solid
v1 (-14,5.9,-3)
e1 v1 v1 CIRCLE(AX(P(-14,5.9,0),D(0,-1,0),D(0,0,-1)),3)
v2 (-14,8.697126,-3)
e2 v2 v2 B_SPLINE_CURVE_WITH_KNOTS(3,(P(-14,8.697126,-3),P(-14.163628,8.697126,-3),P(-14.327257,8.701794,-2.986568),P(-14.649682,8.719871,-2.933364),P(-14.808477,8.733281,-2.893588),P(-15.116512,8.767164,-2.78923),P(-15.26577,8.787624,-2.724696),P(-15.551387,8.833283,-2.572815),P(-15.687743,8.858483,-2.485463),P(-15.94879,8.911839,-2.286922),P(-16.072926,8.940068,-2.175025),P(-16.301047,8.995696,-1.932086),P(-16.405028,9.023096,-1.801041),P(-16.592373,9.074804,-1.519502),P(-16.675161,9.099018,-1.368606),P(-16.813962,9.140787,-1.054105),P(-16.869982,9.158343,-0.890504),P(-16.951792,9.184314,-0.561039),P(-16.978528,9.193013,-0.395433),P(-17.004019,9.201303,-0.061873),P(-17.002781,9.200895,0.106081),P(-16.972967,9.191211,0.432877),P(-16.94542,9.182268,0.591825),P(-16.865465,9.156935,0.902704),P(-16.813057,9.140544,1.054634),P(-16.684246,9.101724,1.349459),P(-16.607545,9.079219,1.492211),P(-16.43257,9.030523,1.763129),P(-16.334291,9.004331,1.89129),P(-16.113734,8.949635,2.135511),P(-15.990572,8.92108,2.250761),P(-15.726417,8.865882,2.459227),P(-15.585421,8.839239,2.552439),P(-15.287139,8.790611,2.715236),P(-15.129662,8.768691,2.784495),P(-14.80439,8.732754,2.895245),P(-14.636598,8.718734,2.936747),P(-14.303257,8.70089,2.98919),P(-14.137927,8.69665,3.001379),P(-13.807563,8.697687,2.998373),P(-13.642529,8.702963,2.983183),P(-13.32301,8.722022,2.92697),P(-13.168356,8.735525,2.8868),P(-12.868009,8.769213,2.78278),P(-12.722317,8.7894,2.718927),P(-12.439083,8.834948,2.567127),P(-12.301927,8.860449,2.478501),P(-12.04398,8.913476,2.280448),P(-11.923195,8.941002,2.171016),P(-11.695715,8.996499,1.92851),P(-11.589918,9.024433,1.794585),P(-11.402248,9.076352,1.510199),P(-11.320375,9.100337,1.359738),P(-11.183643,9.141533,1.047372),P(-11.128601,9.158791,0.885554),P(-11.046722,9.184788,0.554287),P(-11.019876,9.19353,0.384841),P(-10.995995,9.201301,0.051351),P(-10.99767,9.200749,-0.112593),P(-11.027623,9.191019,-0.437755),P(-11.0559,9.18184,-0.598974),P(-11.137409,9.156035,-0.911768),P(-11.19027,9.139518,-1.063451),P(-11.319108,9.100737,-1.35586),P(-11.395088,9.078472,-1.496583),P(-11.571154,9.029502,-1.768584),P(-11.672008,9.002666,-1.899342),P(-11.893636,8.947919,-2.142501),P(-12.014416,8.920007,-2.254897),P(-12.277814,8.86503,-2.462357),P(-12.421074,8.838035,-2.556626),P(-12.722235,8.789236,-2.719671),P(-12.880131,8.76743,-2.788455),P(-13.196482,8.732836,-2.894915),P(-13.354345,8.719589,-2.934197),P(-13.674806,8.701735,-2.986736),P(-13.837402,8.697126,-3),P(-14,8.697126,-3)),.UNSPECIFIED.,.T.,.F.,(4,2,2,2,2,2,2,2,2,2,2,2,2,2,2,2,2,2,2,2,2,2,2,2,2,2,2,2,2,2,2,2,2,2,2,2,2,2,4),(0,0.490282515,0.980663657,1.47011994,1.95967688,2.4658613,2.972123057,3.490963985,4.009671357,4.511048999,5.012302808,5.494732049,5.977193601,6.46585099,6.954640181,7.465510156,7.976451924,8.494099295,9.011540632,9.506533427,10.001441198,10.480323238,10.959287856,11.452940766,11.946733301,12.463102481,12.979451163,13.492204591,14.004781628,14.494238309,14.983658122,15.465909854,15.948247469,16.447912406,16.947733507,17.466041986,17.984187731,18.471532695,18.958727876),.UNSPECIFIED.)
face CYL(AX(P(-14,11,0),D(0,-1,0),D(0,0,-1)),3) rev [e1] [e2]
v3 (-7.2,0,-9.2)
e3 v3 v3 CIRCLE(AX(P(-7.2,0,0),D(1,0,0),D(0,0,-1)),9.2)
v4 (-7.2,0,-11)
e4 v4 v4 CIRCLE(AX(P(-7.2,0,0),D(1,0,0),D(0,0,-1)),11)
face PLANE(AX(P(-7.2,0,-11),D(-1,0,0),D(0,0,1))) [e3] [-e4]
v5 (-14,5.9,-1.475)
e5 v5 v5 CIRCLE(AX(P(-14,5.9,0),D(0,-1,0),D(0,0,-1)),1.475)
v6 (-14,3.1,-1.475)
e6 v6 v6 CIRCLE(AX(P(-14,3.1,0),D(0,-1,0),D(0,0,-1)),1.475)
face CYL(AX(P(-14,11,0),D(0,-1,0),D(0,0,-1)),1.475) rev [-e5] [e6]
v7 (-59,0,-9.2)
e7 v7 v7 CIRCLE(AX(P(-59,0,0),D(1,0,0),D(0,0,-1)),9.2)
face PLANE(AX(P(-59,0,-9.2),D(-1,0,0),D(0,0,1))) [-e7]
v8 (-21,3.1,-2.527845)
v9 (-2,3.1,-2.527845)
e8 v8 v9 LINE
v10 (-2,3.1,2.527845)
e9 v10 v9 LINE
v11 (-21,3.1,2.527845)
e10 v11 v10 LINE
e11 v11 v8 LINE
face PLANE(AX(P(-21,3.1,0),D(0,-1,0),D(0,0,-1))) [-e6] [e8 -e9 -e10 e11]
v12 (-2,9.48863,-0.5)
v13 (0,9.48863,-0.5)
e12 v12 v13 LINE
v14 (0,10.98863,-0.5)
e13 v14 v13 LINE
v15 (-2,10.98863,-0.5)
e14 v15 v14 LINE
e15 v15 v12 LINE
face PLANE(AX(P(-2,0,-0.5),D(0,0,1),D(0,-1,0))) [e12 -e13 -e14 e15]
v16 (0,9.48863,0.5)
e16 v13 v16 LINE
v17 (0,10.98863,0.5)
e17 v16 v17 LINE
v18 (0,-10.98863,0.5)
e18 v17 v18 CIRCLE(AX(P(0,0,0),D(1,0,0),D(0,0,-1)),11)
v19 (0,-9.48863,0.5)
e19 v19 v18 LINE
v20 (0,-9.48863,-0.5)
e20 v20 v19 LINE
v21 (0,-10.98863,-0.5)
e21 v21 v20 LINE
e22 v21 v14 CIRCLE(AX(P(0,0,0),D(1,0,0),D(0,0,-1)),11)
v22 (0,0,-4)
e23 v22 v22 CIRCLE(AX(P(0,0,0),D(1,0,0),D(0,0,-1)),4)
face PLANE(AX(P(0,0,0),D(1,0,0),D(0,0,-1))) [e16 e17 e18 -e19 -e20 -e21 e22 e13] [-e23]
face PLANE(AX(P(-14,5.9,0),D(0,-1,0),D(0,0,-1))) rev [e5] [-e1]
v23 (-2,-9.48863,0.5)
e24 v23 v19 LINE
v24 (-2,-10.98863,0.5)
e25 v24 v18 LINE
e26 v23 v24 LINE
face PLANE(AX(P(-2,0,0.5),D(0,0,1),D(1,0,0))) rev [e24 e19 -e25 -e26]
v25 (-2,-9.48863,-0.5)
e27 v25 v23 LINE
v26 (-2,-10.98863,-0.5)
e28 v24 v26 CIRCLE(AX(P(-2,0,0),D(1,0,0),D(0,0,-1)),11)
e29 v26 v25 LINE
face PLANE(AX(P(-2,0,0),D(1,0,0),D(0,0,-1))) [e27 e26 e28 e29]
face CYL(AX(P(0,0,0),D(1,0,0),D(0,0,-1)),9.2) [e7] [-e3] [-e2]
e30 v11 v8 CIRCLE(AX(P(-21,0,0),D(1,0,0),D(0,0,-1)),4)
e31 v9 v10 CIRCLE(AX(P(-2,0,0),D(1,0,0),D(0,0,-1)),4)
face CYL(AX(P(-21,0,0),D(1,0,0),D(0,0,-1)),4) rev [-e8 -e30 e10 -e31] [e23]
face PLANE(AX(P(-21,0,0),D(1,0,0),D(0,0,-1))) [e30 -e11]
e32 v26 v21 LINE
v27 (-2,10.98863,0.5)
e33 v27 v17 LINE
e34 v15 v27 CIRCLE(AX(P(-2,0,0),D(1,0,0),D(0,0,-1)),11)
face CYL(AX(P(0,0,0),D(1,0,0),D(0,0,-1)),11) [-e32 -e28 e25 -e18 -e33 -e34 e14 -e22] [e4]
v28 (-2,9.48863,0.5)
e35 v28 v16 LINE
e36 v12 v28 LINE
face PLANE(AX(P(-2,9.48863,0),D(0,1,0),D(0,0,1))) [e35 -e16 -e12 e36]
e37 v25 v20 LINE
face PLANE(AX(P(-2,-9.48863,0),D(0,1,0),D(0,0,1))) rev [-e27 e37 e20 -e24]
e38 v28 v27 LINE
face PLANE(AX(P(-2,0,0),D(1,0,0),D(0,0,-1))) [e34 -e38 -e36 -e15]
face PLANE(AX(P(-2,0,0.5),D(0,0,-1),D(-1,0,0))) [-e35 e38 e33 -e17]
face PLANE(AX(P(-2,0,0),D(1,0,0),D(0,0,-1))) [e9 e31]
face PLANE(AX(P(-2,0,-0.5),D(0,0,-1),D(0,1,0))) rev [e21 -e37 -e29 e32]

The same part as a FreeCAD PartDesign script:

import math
import FreeCAD as App
import Part
import Sketcher


def add_polygon(sketch, points):
    """Adds a closed chain of lines whose ends are joined by coincident constraints."""
    first, n = sketch.GeometryCount, len(points)
    for a, b in zip(points, points[1:] + points[:1]):
        sketch.addGeometry(Part.LineSegment(App.Vector(*a, 0), App.Vector(*b, 0)), False)
    for i in range(n):
        sketch.addConstraint(Sketcher.Constraint("Coincident", first + i, 2, first + (i + 1) % n, 1))

doc = App.newDocument("Part")
body = doc.addObject("PartDesign::Body", "Body")

sketch1 = body.newObject("Sketcher::SketchObject", "Sketch")
sketch1.AttachmentSupport = (doc.getObject("XZ_Plane"), [""])
sketch1.MapMode = "FlatFace"
add_polygon(sketch1, [(0, 0), (0, -11), (-7.2, -11), (-7.2, -9.2), (-59, -9.2), (-59, 0)])
sketch1.addConstraint([
    Sketcher.Constraint("Vertical", 0),
    Sketcher.Constraint("Horizontal", 1),
    Sketcher.Constraint("Vertical", 2),
    Sketcher.Constraint("Horizontal", 3),
    Sketcher.Constraint("Vertical", 4),
    Sketcher.Constraint("Horizontal", 5),
    Sketcher.Constraint("Coincident", 5, 2, -1, 1),
    Sketcher.Constraint("DistanceX", 5, 1, 5, 2, 59.0),
    Sketcher.Constraint("DistanceY", 0, 2, 0, 1, 11.0),
    Sketcher.Constraint("DistanceX", 1, 2, 1, 1, 7.2),
    Sketcher.Constraint("DistanceY", 2, 1, 2, 2, 1.8),
])
revolution = body.newObject("PartDesign::Revolution", "Revolution")
revolution.Profile = sketch1
revolution.ReferenceAxis = (sketch1, ["H_Axis"])
revolution.Angle = 360

sketch2 = body.newObject("Sketcher::SketchObject", "Sketch001")
sketch2.AttachmentSupport = (doc.getObject("YZ_Plane"), [""])
sketch2.MapMode = "FlatFace"
sketch2.addGeometry([
    Part.LineSegment(App.Vector(3.1, -2.527845, 0), App.Vector(3.1, 2.527845, 0)),
    Part.ArcOfCircle(Part.Circle(App.Vector(0, 0, 0), App.Vector(0, 0, 1), 4), math.radians(39.194967), math.radians(270)),
    Part.ArcOfCircle(Part.Circle(App.Vector(0, 0, 0), App.Vector(0, 0, 1), 4), math.radians(-90), math.radians(-39.194967)),
], False)
sketch2.addConstraint([
    Sketcher.Constraint("Coincident", 0, 2, 1, 1),
    Sketcher.Constraint("Tangent", 1, 2, 2, 1),
    Sketcher.Constraint("Coincident", 2, 2, 0, 1),
    Sketcher.Constraint("Vertical", 0),
    Sketcher.Constraint("Coincident", 1, 3, -1, 1),
    Sketcher.Constraint("Equal", 1, 2),
    Sketcher.Constraint("PointOnObject", 1, 2, -2),
    Sketcher.Constraint("Radius", 1, 4.0),
    Sketcher.Constraint("DistanceX", -1, 1, 0, 2, 3.1),
])
pocket1 = body.newObject("PartDesign::Pocket", "Pocket")
pocket1.Profile = sketch2
pocket1.Length = 21

sketch3 = body.newObject("Sketcher::SketchObject", "Sketch002")
sketch3.AttachmentSupport = (doc.getObject("YZ_Plane"), [""])
sketch3.MapMode = "FlatFace"
sketch3.addGeometry([
    Part.ArcOfCircle(Part.Circle(App.Vector(0, 0, 0), App.Vector(0, 0, 1), 4), math.radians(-39.194967), math.radians(39.194967)),
    Part.ArcOfCircle(Part.Circle(App.Vector(0, 0, 0), App.Vector(0, 0, 1), 4), math.radians(39.194967), math.radians(270)),
    Part.ArcOfCircle(Part.Circle(App.Vector(0, 0, 0), App.Vector(0, 0, 1), 4), math.radians(-90), math.radians(-39.194967)),
], False)
sketch3.addConstraint([
    Sketcher.Constraint("Tangent", 0, 2, 1, 1),
    Sketcher.Constraint("Tangent", 1, 2, 2, 1),
    Sketcher.Constraint("Tangent", 2, 2, 0, 1),
    Sketcher.Constraint("Coincident", 0, 3, -1, 1),
    Sketcher.Constraint("PointOnObject", 1, 2, -2),
    Sketcher.Constraint("Vertical", 0, 2, 2, 2),
    Sketcher.Constraint("Radius", 0, 4.0),
    Sketcher.Constraint("DistanceX", -1, 1, 0, 2, 3.1),
])
pocket2 = body.newObject("PartDesign::Pocket", "Pocket001")
pocket2.Profile = sketch3
pocket2.Length = 2

sketch4 = body.newObject("Sketcher::SketchObject", "Sketch003")
sketch4.AttachmentSupport = (doc.getObject("XZ_Plane"), [""])
sketch4.MapMode = "FlatFace"
sketch4.AttachmentOffset = App.Placement(App.Vector(0, 0, -3.1), App.Rotation())
sketch4.addGeometry(Part.Circle(App.Vector(-14, 0, 0), App.Vector(0, 0, 1), 1.475), False)
sketch4.addConstraint([
    Sketcher.Constraint("PointOnObject", 0, 3, -1),
    Sketcher.Constraint("Diameter", 0, 2.95),
    Sketcher.Constraint("DistanceX", 0, 3, -1, 1, 14.0),
])
pocket3 = body.newObject("PartDesign::Pocket", "Pocket002")
pocket3.Profile = sketch4
pocket3.Type = "ThroughAll"

sketch5 = body.newObject("Sketcher::SketchObject", "Sketch004")
sketch5.AttachmentSupport = (doc.getObject("XZ_Plane"), [""])
sketch5.MapMode = "FlatFace"
sketch5.AttachmentOffset = App.Placement(App.Vector(0, 0, -5.9), App.Rotation())
sketch5.addGeometry([
    Part.Circle(App.Vector(-14, 0, 0), App.Vector(0, 0, 1), 3),
    Part.Circle(App.Vector(-14, 0, 0), App.Vector(0, 0, 1), 1.475),
], False)
sketch5.addConstraint([
    Sketcher.Constraint("Coincident", 1, 3, 0, 3),
    Sketcher.Constraint("PointOnObject", 0, 3, -1),
    Sketcher.Constraint("Diameter", 0, 6.0),
    Sketcher.Constraint("Diameter", 1, 2.95),
    Sketcher.Constraint("DistanceX", 0, 3, -1, 1, 14.0),
])
pocket4 = body.newObject("PartDesign::Pocket", "Pocket003")
pocket4.Profile = sketch5
pocket4.Type = "ThroughAll"

sketch6 = body.newObject("Sketcher::SketchObject", "Sketch005")
sketch6.AttachmentSupport = (doc.getObject("YZ_Plane"), [""])
sketch6.MapMode = "FlatFace"
sketch6.addGeometry([
    Part.LineSegment(App.Vector(9.48863, -0.5, 0), App.Vector(10.98863, -0.5, 0)),
    Part.ArcOfCircle(Part.Circle(App.Vector(0, 0, 0), App.Vector(0, 0, 1), 11), math.radians(-2.605251), math.radians(2.605251)),
    Part.LineSegment(App.Vector(10.98863, 0.5, 0), App.Vector(9.48863, 0.5, 0)),
    Part.LineSegment(App.Vector(9.48863, 0.5, 0), App.Vector(9.48863, -0.5, 0)),
    Part.ArcOfCircle(Part.Circle(App.Vector(0, 0, 0), App.Vector(0, 0, 1), 11), math.radians(177.394749), math.radians(182.605251)),
    Part.LineSegment(App.Vector(-10.98863, -0.5, 0), App.Vector(-9.48863, -0.5, 0)),
    Part.LineSegment(App.Vector(-9.48863, -0.5, 0), App.Vector(-9.48863, 0.5, 0)),
    Part.LineSegment(App.Vector(-9.48863, 0.5, 0), App.Vector(-10.98863, 0.5, 0)),
], False)
sketch6.addConstraint([
    Sketcher.Constraint("Coincident", 0, 2, 1, 1),
    Sketcher.Constraint("Coincident", 1, 2, 2, 1),
    Sketcher.Constraint("Coincident", 2, 2, 3, 1),
    Sketcher.Constraint("Coincident", 3, 2, 0, 1),
    Sketcher.Constraint("Coincident", 4, 2, 5, 1),
    Sketcher.Constraint("Coincident", 5, 2, 6, 1),
    Sketcher.Constraint("Coincident", 6, 2, 7, 1),
    Sketcher.Constraint("Coincident", 7, 2, 4, 1),
    Sketcher.Constraint("Horizontal", 0),
    Sketcher.Constraint("Horizontal", 2),
    Sketcher.Constraint("Vertical", 3),
    Sketcher.Constraint("Horizontal", 5),
    Sketcher.Constraint("Vertical", 6),
    Sketcher.Constraint("Horizontal", 7),
    Sketcher.Constraint("Coincident", 1, 3, -1, 1),
    Sketcher.Constraint("Coincident", 4, 3, -1, 1),
    Sketcher.Constraint("Equal", 1, 4),
    Sketcher.Constraint("Symmetric", 2, 2, 5, 2, -1, 1),
    Sketcher.Constraint("Horizontal", 3, 2, 4, 2),
    Sketcher.Constraint("Horizontal", 2, 2, 6, 2),
    Sketcher.Constraint("Radius", 1, 11.0),
    Sketcher.Constraint("DistanceY", 3, 2, 3, 1, 1.0),
    Sketcher.Constraint("DistanceX", 0, 1, 0, 2, 1.5),
])
pocket5 = body.newObject("PartDesign::Pocket", "Pocket004")
pocket5.Profile = sketch6
pocket5.Length = 2

doc.recompute()
